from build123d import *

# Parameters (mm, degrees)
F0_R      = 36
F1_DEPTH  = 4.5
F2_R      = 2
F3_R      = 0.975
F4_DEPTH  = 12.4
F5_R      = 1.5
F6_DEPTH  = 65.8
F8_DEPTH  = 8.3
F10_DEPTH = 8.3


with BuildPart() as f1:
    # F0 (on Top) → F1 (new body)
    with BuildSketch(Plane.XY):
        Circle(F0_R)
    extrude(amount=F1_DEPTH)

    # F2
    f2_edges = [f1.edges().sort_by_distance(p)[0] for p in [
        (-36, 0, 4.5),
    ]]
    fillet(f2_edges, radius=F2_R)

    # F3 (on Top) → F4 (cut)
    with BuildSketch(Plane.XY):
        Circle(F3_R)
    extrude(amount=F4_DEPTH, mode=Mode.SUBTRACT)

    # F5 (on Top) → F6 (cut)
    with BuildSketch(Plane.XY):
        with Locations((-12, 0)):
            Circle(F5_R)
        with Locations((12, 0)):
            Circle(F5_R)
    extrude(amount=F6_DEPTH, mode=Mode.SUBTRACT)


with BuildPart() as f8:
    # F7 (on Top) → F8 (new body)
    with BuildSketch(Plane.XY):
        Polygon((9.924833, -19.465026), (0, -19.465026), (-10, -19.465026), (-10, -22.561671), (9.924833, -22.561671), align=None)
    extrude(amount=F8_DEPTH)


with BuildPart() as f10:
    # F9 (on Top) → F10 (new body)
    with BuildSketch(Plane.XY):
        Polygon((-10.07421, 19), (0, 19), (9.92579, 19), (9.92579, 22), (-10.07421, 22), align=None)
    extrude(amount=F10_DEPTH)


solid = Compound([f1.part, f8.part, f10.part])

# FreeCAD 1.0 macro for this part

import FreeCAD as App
import Part
import Sketcher

V = App.Vector
Q = App.Units.Quantity


def edges_at(feature, points):
    """Names of the edges that pass closest to the given points."""
    edges = feature.Shape.Edges
    near = lambda p: min(range(len(edges)), key=lambda i: edges[i].distToShape(Part.Vertex(*p))[0])
    return sorted({f"Edge{near(p) + 1}" for p in points})


def add_polygon(sketch, points):
    """Adds a closed chain of lines whose ends are joined by coincident constraints."""
    first, n = sketch.GeometryCount, len(points)
    for a, b in zip(points, points[1:] + points[:1]):
        sketch.addGeometry(Part.LineSegment(App.Vector(*a, 0), App.Vector(*b, 0)), False)
    for i in range(n):
        sketch.addConstraint(Sketcher.Constraint("Coincident", first + i, 2, first + (i + 1) % n, 1))

doc = App.newDocument("Part")
params = doc.addObject("Spreadsheet::Sheet", "Params")
for row, (alias, value) in enumerate([
    ("sketch1_diameter", "72 mm"),
    ("pad1_length", "4.5 mm"),
    ("fillet_radius", "2 mm"),
    ("sketch2_diameter", "1.95 mm"),
    ("pocket1_length", "12.4 mm"),
    ("sketch3_diameter", "3 mm"),
    ("pocket2_length", "65.8 mm"),
    ("pad2_length", "8.3 mm"),
    ("sketch5_width", "20 mm"),
    ("sketch5_height", "3 mm"),
    ("pad3_length", "8.3 mm"),
], start=1):
    params.set(f"A{row}", alias)
    params.set(f"B{row}", "=" + value)
    params.setAlias(f"B{row}", alias)

body = doc.addObject("PartDesign::Body", "Body")

# Sketch on XY plane
sketch1 = body.newObject("Sketcher::SketchObject", "Sketch")
sketch1.AttachmentSupport = (doc.getObject("XY_Plane"), [""])
sketch1.MapMode = "FlatFace"
sketch1.addGeometry(Part.Circle(V(0, 0, 0), V(0, 0, 1), 36), False)
sketch1.addConstraint([
    Sketcher.Constraint("Coincident", 0, 3, -1, 1),
    Sketcher.Constraint("Diameter", 0, Q("72 mm")),
])
sketch1.setExpression("Constraints[1]", "Params.sketch1_diameter")
pad1 = body.newObject("PartDesign::Pad", "Pad")
pad1.Profile = sketch1
pad1.setExpression("Length", "Params.pad1_length")
doc.recompute()

fillet = body.newObject("PartDesign::Fillet", "Fillet")
fillet.Base = (pad1, edges_at(pad1, [(-36, 0, 4.5)]))
fillet.setExpression("Radius", "Params.fillet_radius")

# Sketch on XY plane
sketch2 = body.newObject("Sketcher::SketchObject", "Sketch001")
sketch2.AttachmentSupport = (doc.getObject("XY_Plane"), [""])
sketch2.MapMode = "FlatFace"
sketch2.addGeometry(Part.Circle(V(0, 0, 0), V(0, 0, 1), 1), False)
sketch2.addConstraint([
    Sketcher.Constraint("Coincident", 0, 3, -1, 1),
    Sketcher.Constraint("Diameter", 0, Q("1.95 mm")),
])
sketch2.setExpression("Constraints[1]", "Params.sketch2_diameter")
pocket1 = body.newObject("PartDesign::Pocket", "Pocket")
pocket1.Profile = sketch2
pocket1.setExpression("Length", "Params.pocket1_length")
pocket1.Reversed = True

# Sketch on XY plane
sketch3 = body.newObject("Sketcher::SketchObject", "Sketch002")
sketch3.AttachmentSupport = (doc.getObject("XY_Plane"), [""])
sketch3.MapMode = "FlatFace"
sketch3.addGeometry([
    Part.Circle(V(-12, 0, 0), V(0, 0, 1), 1.5),
    Part.Circle(V(12, 0, 0), V(0, 0, 1), 1.5),
], False)
sketch3.addConstraint([
    Sketcher.Constraint("Equal", 0, 1),
    Sketcher.Constraint("Symmetric", 0, 3, 1, 3, -1, 1),
    Sketcher.Constraint("PointOnObject", 0, 3, -1),
    Sketcher.Constraint("Diameter", 0, Q("3 mm")),
    Sketcher.Constraint("DistanceX", 0, 3, -1, 1, Q("12 mm")),
])
sketch3.setExpression("Constraints[3]", "Params.sketch3_diameter")
pocket2 = body.newObject("PartDesign::Pocket", "Pocket001")
pocket2.Profile = sketch3
pocket2.setExpression("Length", "Params.pocket2_length")
pocket2.Reversed = True
body2 = doc.addObject("PartDesign::Body", "Body001")

# Sketch on XY plane
sketch4 = body2.newObject("Sketcher::SketchObject", "Sketch003")
sketch4.AttachmentSupport = (doc.getObject("XY_Plane001"), [""])
sketch4.MapMode = "FlatFace"
add_polygon(sketch4, [(9.9, -19.5), (-10, -19.5), (-10, -22.6), (9.9, -22.6)])  # lines 0-3
sketch4.addConstraint([
    Sketcher.Constraint("Horizontal", 0),
    Sketcher.Constraint("Vertical", 1),
    Sketcher.Constraint("Horizontal", 2),
    Sketcher.Constraint("Vertical", 3),
    Sketcher.Constraint("DistanceX", 0, 2, -1, 1, Q("10 mm")),
    Sketcher.Constraint("DistanceX", 0, 2, 0, 1, Q("19.924833 mm")),
    Sketcher.Constraint("DistanceY", 1, 2, 1, 1, Q("3.096645 mm")),
    Sketcher.Constraint("DistanceY", 1, 2, -1, 1, Q("22.561671 mm")),
])
pad2 = body2.newObject("PartDesign::Pad", "Pad001")
pad2.Profile = sketch4
pad2.setExpression("Length", "Params.pad2_length")
body3 = doc.addObject("PartDesign::Body", "Body002")

# Sketch on XY plane
sketch5 = body3.newObject("Sketcher::SketchObject", "Sketch004")
sketch5.AttachmentSupport = (doc.getObject("XY_Plane002"), [""])
sketch5.MapMode = "FlatFace"
add_polygon(sketch5, [(-10.1, 19), (9.9, 19), (9.9, 22), (-10.1, 22)])  # lines 0-3
sketch5.addConstraint([
    Sketcher.Constraint("Horizontal", 0),
    Sketcher.Constraint("Vertical", 1),
    Sketcher.Constraint("Horizontal", 2),
    Sketcher.Constraint("Vertical", 3),
    Sketcher.Constraint("DistanceX", 0, 1, 0, 2, Q("20 mm")),
    Sketcher.Constraint("DistanceY", 1, 1, 1, 2, Q("3 mm")),
    Sketcher.Constraint("DistanceY", -1, 1, 0, 2, Q("19 mm")),
    Sketcher.Constraint("DistanceX", -1, 1, 0, 2, Q("9.92579 mm")),
])
sketch5.setExpression("Constraints[8]", "Params.sketch5_width")
sketch5.setExpression("Constraints[9]", "Params.sketch5_height")
pad3 = body3.newObject("PartDesign::Pad", "Pad002")
pad3.Profile = sketch5
pad3.setExpression("Length", "Params.pad3_length")

doc.recompute()
